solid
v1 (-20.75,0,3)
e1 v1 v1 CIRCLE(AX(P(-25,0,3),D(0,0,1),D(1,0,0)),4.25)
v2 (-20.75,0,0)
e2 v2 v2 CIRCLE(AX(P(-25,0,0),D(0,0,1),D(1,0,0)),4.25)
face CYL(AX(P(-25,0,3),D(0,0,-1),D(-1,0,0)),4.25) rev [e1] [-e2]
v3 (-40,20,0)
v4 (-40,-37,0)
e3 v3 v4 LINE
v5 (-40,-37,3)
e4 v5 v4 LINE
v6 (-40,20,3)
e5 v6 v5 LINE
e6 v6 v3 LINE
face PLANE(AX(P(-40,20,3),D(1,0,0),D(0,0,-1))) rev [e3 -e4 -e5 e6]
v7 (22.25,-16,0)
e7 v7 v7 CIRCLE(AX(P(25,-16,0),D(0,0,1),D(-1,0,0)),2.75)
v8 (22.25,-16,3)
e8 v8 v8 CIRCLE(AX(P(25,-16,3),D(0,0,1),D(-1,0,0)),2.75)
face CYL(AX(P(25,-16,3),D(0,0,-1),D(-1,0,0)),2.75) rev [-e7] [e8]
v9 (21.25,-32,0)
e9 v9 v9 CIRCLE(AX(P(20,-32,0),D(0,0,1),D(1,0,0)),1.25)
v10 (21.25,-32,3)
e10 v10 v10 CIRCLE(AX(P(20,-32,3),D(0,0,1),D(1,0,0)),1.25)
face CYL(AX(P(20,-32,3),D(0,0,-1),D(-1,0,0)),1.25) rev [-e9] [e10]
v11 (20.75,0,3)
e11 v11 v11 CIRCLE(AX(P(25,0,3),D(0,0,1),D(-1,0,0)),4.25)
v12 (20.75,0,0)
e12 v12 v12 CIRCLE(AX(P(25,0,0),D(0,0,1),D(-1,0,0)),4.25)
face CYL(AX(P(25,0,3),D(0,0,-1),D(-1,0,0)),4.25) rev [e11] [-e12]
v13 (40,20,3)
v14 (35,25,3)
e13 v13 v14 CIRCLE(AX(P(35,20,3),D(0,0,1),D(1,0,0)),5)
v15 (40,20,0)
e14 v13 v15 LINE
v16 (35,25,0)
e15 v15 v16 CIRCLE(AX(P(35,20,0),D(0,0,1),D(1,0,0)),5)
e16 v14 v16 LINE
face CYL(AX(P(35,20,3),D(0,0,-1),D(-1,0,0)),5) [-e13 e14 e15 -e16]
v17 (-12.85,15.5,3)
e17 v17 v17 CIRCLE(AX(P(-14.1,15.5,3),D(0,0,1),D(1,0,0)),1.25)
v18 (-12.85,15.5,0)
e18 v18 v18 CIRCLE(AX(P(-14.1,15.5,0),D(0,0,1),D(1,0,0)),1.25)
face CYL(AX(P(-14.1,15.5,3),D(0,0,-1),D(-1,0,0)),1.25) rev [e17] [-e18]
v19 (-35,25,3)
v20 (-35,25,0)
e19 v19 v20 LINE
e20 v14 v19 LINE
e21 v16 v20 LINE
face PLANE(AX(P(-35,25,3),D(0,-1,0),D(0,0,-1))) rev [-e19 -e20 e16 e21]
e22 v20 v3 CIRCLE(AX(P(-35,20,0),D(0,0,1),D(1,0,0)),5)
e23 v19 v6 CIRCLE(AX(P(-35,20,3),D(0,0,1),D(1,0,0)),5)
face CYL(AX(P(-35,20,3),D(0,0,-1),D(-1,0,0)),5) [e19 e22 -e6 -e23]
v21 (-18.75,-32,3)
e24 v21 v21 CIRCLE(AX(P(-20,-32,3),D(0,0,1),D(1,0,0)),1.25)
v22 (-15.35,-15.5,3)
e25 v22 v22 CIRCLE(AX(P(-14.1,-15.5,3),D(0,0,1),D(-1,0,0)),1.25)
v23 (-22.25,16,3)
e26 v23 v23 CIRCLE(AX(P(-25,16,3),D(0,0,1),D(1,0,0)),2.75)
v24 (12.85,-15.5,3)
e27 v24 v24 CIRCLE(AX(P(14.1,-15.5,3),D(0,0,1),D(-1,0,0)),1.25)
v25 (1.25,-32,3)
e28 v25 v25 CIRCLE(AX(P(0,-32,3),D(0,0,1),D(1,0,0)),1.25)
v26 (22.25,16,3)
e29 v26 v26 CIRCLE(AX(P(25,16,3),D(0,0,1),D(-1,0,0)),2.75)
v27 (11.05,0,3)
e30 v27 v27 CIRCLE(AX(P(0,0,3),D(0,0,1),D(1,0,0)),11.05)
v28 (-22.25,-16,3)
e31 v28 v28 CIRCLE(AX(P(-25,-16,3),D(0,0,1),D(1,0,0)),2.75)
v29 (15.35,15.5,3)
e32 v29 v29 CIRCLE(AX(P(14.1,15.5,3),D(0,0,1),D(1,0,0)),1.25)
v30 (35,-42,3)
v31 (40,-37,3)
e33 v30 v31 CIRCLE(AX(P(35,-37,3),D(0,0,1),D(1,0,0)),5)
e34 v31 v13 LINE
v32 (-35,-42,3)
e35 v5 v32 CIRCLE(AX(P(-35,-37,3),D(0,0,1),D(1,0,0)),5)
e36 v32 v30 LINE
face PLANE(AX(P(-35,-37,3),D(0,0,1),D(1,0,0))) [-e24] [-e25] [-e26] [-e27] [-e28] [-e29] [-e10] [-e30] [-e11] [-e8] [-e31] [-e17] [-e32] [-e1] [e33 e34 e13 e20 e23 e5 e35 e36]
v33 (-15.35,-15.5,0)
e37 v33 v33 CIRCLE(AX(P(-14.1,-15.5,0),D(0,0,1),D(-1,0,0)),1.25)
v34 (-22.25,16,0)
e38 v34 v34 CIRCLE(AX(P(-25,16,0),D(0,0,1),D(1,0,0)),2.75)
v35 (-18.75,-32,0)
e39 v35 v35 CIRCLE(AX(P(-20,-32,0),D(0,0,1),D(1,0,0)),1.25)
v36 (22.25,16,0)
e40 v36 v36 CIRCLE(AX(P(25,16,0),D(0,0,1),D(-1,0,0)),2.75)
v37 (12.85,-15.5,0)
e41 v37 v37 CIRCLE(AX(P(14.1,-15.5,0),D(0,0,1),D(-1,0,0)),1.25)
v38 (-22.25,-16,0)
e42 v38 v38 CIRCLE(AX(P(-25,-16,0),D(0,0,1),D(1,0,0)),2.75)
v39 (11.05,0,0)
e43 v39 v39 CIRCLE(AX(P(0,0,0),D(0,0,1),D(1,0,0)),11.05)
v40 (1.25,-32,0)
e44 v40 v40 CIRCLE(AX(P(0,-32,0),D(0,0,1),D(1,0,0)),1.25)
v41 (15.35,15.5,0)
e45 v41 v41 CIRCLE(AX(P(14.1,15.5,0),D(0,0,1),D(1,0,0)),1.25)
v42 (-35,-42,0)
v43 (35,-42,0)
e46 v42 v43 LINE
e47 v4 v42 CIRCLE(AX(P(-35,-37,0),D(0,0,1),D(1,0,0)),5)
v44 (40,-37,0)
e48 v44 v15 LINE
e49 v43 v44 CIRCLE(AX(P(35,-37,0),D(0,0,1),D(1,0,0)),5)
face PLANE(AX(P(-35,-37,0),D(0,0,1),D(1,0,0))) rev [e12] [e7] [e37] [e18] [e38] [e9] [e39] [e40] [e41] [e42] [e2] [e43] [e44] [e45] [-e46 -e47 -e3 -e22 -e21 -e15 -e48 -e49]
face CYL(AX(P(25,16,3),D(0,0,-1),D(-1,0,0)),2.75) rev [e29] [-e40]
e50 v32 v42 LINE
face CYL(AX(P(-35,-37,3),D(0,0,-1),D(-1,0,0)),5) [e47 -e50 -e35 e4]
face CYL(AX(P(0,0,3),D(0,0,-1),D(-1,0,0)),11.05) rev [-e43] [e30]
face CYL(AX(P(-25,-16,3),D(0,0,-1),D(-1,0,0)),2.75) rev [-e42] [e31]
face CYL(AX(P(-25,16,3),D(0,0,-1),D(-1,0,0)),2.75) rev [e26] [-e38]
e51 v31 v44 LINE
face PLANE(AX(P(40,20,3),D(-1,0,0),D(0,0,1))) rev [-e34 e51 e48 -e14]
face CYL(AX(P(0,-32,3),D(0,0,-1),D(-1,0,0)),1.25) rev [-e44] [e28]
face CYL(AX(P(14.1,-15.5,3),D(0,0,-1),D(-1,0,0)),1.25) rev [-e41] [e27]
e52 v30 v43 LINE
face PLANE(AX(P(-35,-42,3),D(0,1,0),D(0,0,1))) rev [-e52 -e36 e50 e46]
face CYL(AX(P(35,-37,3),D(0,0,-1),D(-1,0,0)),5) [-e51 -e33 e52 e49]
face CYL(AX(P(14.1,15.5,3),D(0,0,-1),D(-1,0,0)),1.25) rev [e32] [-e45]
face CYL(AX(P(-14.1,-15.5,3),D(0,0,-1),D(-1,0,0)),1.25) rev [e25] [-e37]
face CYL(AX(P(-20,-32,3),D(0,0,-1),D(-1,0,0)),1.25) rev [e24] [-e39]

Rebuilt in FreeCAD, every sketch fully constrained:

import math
import FreeCAD as App
import Part
import Sketcher

V = App.Vector

doc = App.newDocument("Part")
body = doc.addObject("PartDesign::Body", "Body")

# Sketch on XY plane
sketch1 = body.newObject("Sketcher::SketchObject", "Sketch")
sketch1.AttachmentSupport = (doc.getObject("XY_Plane"), [""])
sketch1.MapMode = "FlatFace"
sketch1.addGeometry([
    Part.LineSegment(V(-40, 20, 0), V(-40, -37, 0)),  # 0
    Part.ArcOfCircle(Part.Circle(V(-35, -37, 0), V(0, 0, 1), 5), math.radians(180), math.radians(270)),  # 1
    Part.LineSegment(V(-35, -42, 0), V(35, -42, 0)),  # 2
    Part.ArcOfCircle(Part.Circle(V(35, -37, 0), V(0, 0, 1), 5), math.radians(-90), math.radians(0)),  # 3
    Part.LineSegment(V(40, -37, 0), V(40, 20, 0)),  # 4
    Part.ArcOfCircle(Part.Circle(V(35, 20, 0), V(0, 0, 1), 5), math.radians(0), math.radians(90)),  # 5
    Part.LineSegment(V(35, 25, 0), V(-35, 25, 0)),  # 6
    Part.ArcOfCircle(Part.Circle(V(-35, 20, 0), V(0, 0, 1), 5), math.radians(90), math.radians(180)),  # 7
    Part.Circle(V(-20, -32, 0), V(0, 0, 1), 1.2),  # 8
    Part.Circle(V(-25, -16, 0), V(0, 0, 1), 2.8),  # 9
    Part.Circle(V(-14.1, -15.5, 0), V(0, 0, 1), 1.2),  # 10
    Part.Circle(V(0, -32, 0), V(0, 0, 1), 1.2),  # 11
    Part.Circle(V(20, -32, 0), V(0, 0, 1), 1.2),  # 12
    Part.Circle(V(14.1, -15.5, 0), V(0, 0, 1), 1.2),  # 13
    Part.Circle(V(25, -16, 0), V(0, 0, 1), 2.8),  # 14
    Part.Circle(V(-25, 0, 0), V(0, 0, 1), 4.2),  # 15
    Part.Circle(V(-25, 16, 0), V(0, 0, 1), 2.8),  # 16
    Part.Circle(V(-14.1, 15.5, 0), V(0, 0, 1), 1.2),  # 17
    Part.Circle(V(0, 0, 0), V(0, 0, 1), 11.1),  # 18
    Part.Circle(V(25, 0, 0), V(0, 0, 1), 4.2),  # 19
    Part.Circle(V(14.1, 15.5, 0), V(0, 0, 1), 1.2),  # 20
    Part.Circle(V(25, 16, 0), V(0, 0, 1), 2.8),  # 21
], False)
sketch1.addConstraint([
    Sketcher.Constraint("Tangent", 0, 2, 1, 1),
    Sketcher.Constraint("Tangent", 1, 2, 2, 1),
    Sketcher.Constraint("Tangent", 2, 2, 3, 1),
    Sketcher.Constraint("Tangent", 3, 2, 4, 1),
    Sketcher.Constraint("Tangent", 4, 2, 5, 1),
    Sketcher.Constraint("Tangent", 5, 2, 6, 1),
    Sketcher.Constraint("Tangent", 6, 2, 7, 1),
    Sketcher.Constraint("Tangent", 7, 2, 0, 1),
    Sketcher.Constraint("Vertical", 0),
    Sketcher.Constraint("Horizontal", 2),
    Sketcher.Constraint("Vertical", 4),
    Sketcher.Constraint("Horizontal", 6),
    Sketcher.Constraint("Coincident", 18, 3, -1, 1),
    Sketcher.Constraint("Equal", 1, 3),
    Sketcher.Constraint("Equal", 3, 5),
    Sketcher.Constraint("Equal", 5, 7),
    Sketcher.Constraint("Equal", 8, 10),
    Sketcher.Constraint("Equal", 10, 11),
    Sketcher.Constraint("Equal", 11, 12),
    Sketcher.Constraint("Equal", 12, 13),
    Sketcher.Constraint("Equal", 9, 14),
    Sketcher.Constraint("Equal", 14, 16),
    Sketcher.Constraint("Equal", 13, 17),
    Sketcher.Constraint("Equal", 15, 19),
    Sketcher.Constraint("Equal", 17, 20),
    Sketcher.Constraint("Equal", 16, 21),
    Sketcher.Constraint("Symmetric", 14, 3, 16, 3, -1, 1),
    Sketcher.Constraint("Symmetric", 13, 3, 17, 3, -1, 1),
    Sketcher.Constraint("Symmetric", 15, 3, 19, 3, -1, 1),
    Sketcher.Constraint("Symmetric", 10, 3, 20, 3, -1, 1),
    Sketcher.Constraint("Symmetric", 9, 3, 21, 3, -1, 1),
    Sketcher.Constraint("Symmetric", 8, 3, 12, 3, -2),
    Sketcher.Constraint("Symmetric", 10, 3, 13, 3, -2),
    Sketcher.Constraint("Symmetric", 9, 3, 14, 3, -2),
    Sketcher.Constraint("PointOnObject", 11, 3, -2),
    Sketcher.Constraint("PointOnObject", 15, 3, -1),
    Sketcher.Constraint("Horizontal", 8, 3, 11, 3),
    Sketcher.Constraint("Vertical", 9, 3, 15, 3),
    Sketcher.Constraint("Radius", 1, 5.0),
    Sketcher.Constraint("Diameter", 8, 2.5),
    Sketcher.Constraint("Diameter", 9, 5.5),
    Sketcher.Constraint("Diameter", 15, 8.5),
    Sketcher.Constraint("Diameter", 18, 22.1),
    Sketcher.Constraint("DistanceX", 2, 1, 2, 2, 70.0),
    Sketcher.Constraint("DistanceY", 0, 2, 0, 1, 57.0),
    Sketcher.Constraint("DistanceX", 1, 3, -1, 1, 35.0),
    Sketcher.Constraint("DistanceY", 1, 3, -1, 1, 37.0),
    Sketcher.Constraint("DistanceX", 8, 3, -1, 1, 20.0),
    Sketcher.Constraint("DistanceY", 8, 3, -1, 1, 32.0),
    Sketcher.Constraint("DistanceX", 9, 3, -1, 1, 25.0),
    Sketcher.Constraint("DistanceY", 9, 3, -1, 1, 16.0),
    Sketcher.Constraint("DistanceY", 10, 3, 17, 3, 31.0),
    Sketcher.Constraint("DistanceX", 10, 3, -1, 1, 14.1),
])
pad1 = body.newObject("PartDesign::Pad", "Pad")
pad1.Profile = sketch1
pad1.Length = 3

doc.recompute()
